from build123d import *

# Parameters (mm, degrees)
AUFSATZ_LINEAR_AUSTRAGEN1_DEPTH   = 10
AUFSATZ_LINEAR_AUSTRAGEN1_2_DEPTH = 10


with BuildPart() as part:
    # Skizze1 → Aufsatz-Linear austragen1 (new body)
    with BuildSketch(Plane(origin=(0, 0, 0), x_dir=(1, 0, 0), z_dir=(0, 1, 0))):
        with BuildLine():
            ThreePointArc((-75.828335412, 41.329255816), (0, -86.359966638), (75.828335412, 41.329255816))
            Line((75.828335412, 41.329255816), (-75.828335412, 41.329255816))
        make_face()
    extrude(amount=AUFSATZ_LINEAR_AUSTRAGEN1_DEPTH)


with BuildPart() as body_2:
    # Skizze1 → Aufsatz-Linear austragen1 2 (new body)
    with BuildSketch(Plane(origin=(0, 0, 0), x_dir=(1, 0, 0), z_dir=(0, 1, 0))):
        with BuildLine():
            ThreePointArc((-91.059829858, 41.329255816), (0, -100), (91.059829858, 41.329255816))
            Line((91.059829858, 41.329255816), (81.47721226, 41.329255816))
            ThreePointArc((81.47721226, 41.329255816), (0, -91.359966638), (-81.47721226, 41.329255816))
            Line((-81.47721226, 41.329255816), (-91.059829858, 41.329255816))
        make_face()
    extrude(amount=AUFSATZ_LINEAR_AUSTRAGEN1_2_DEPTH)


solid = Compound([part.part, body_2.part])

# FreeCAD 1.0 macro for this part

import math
import FreeCAD as App
import Part
import Sketcher

doc = App.newDocument("Part")
body = doc.addObject("PartDesign::Body", "Body")

sketch1 = doc.addObject("Sketcher::SketchObject", "Sketch")
body.addObject(sketch1)
sketch1.AttachmentSupport = (doc.XZ_Plane, [""])
sketch1.MapMode = "FlatFace"
sketch1.addGeometry([
    Part.ArcOfCircle(Part.Circle(App.Vector(0, 0, 0), App.Vector(0, 0, 1), 86.359967), math.radians(-28.592023), math.radians(208.592023)),
    Part.LineSegment(App.Vector(75.828335, -41.329256, 0), App.Vector(-75.828335, -41.329256, 0)),
], False)
sketch1.addConstraint([
    Sketcher.Constraint("Coincident", 0, 1, 1, 1),
    Sketcher.Constraint("Coincident", 1, 2, 0, 2),
    Sketcher.Constraint("Horizontal", 1),
    Sketcher.Constraint("Coincident", 0, 3, -1, 1),
    Sketcher.Constraint("Radius", 0, 86.359967),
    Sketcher.Constraint("DistanceX", 1, 2, 1, 1, 151.656671),
])
pad1 = doc.addObject("PartDesign::Pad", "Pad")
body.addObject(pad1)
pad1.Profile = sketch1
pad1.Length = 10
pad1.Reversed = True
body2 = doc.addObject("PartDesign::Body", "Body001")

sketch2 = doc.addObject("Sketcher::SketchObject", "Sketch001")
body2.addObject(sketch2)
sketch2.AttachmentSupport = (doc.getObject("XZ_Plane001"), [""])
sketch2.MapMode = "FlatFace"
sketch2.addGeometry([
    Part.ArcOfCircle(Part.Circle(App.Vector(0, 0, 0), App.Vector(0, 0, 1), 100), math.radians(-24.411837), math.radians(204.411837)),
    Part.LineSegment(App.Vector(91.05983, -41.329256, 0), App.Vector(81.477212, -41.329256, 0)),
    Part.ArcOfCircle(Part.Circle(App.Vector(0, 0, 0), App.Vector(0, 0, 1), 91.359967), math.radians(-26.896368), math.radians(206.896368)),
    Part.LineSegment(App.Vector(-81.477212, -41.329256, 0), App.Vector(-91.05983, -41.329256, 0)),
], False)
sketch2.addConstraint([
    Sketcher.Constraint("Coincident", 0, 1, 1, 1),
    Sketcher.Constraint("Coincident", 1, 2, 2, 1),
    Sketcher.Constraint("Coincident", 2, 2, 3, 1),
    Sketcher.Constraint("Coincident", 3, 2, 0, 2),
    Sketcher.Constraint("Horizontal", 1),
    Sketcher.Constraint("Horizontal", 3),
    Sketcher.Constraint("Coincident", 0, 3, -1, 1),
    Sketcher.Constraint("Coincident", 2, 3, -1, 1),
    Sketcher.Constraint("Horizontal", 1, 2, 2, 2),
    Sketcher.Constraint("Radius", 0, 100.0),
    Sketcher.Constraint("Radius", 2, 91.359967),
    Sketcher.Constraint("DistanceX", 1, 2, 1, 1, 9.582618),
])
pad2 = doc.addObject("PartDesign::Pad", "Pad001")
body2.addObject(pad2)
pad2.Profile = sketch2
pad2.Length = 10
pad2.Reversed = True

doc.recompute()
